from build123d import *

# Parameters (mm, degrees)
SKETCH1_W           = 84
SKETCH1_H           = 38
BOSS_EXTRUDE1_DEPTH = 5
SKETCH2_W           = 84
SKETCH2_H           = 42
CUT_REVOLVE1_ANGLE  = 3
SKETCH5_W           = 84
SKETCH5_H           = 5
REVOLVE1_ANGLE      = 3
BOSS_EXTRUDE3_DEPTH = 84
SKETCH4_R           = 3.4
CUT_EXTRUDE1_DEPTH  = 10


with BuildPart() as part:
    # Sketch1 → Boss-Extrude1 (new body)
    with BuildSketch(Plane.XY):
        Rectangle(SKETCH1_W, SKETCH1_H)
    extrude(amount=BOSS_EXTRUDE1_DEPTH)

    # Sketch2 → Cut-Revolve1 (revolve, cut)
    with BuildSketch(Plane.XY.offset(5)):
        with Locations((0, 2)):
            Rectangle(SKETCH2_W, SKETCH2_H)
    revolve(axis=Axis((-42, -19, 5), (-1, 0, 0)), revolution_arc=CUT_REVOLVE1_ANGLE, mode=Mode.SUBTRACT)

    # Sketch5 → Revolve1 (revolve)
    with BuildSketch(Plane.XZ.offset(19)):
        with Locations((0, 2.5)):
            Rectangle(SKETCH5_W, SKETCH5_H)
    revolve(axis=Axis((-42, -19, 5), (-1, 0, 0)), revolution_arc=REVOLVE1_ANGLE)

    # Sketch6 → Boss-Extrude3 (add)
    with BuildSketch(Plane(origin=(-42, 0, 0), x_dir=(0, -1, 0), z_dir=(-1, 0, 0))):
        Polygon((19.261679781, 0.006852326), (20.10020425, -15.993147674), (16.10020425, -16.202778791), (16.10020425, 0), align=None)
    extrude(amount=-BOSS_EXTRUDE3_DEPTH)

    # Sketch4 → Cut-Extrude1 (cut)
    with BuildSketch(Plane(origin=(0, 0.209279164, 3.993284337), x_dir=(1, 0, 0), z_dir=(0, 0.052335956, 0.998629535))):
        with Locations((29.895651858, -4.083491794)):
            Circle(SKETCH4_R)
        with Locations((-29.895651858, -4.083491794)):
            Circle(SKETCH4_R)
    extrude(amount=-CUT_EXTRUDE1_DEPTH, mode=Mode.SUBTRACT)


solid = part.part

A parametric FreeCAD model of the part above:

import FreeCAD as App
import Part
import Sketcher
Q = App.Units.Quantity


def add_polygon(sketch, points):
    """Adds a closed chain of lines whose ends are joined by coincident constraints."""
    first, n = sketch.GeometryCount, len(points)
    for a, b in zip(points, points[1:] + points[:1]):
        sketch.addGeometry(Part.LineSegment(App.Vector(*a, 0), App.Vector(*b, 0)), False)
    for i in range(n):
        sketch.addConstraint(Sketcher.Constraint("Coincident", first + i, 2, first + (i + 1) % n, 1))

doc = App.newDocument("Part")
body = doc.addObject("PartDesign::Body", "Body")

sketch1 = body.newObject("Sketcher::SketchObject", "Sketch")
sketch1.AttachmentSupport = (doc.getObject("XY_Plane"), [""])
sketch1.MapMode = "FlatFace"
add_polygon(sketch1, [(-42, 19), (-42, -19), (42, -19), (42, 19)])
sketch1.addConstraint(Sketcher.Constraint("Vertical", 0))
sketch1.addConstraint(Sketcher.Constraint("Horizontal", 1))
sketch1.addConstraint(Sketcher.Constraint("Vertical", 2))
sketch1.addConstraint(Sketcher.Constraint("Horizontal", 3))
sketch1.addConstraint(Sketcher.Constraint("Symmetric", 0, 2, 2, 2, -1, 1))
sketch1.addConstraint(Sketcher.Constraint("DistanceX", 1, 1, 1, 2, 84.0))
sketch1.addConstraint(Sketcher.Constraint("DistanceY", 0, 2, 0, 1, 38.0))
pad1 = body.newObject("PartDesign::Pad", "Pad")
pad1.Profile = sketch1
pad1.Length = 5

sketch2 = body.newObject("Sketcher::SketchObject", "Sketch001")
sketch2.AttachmentSupport = (doc.getObject("XY_Plane"), [""])
sketch2.MapMode = "FlatFace"
sketch2.AttachmentOffset = App.Placement(App.Vector(0, 0, 5), App.Rotation())
add_polygon(sketch2, [(-42, 23), (-42, -19), (42, -19), (42, 23)])
sketch2.addGeometry(Part.LineSegment(App.Vector(42, -19, 0), App.Vector(-42, -19, 0)), True)
sketch2.addConstraint(Sketcher.Constraint("Vertical", 0))
sketch2.addConstraint(Sketcher.Constraint("Horizontal", 1))
sketch2.addConstraint(Sketcher.Constraint("Vertical", 2))
sketch2.addConstraint(Sketcher.Constraint("Horizontal", 3))
sketch2.addConstraint(Sketcher.Constraint("Horizontal", 4))
sketch2.addConstraint(Sketcher.Constraint("Coincident", 4, 1, 1, 2))
sketch2.addConstraint(Sketcher.Constraint("Vertical", 3, 2, 4, 2))
sketch2.addConstraint(Sketcher.Constraint("DistanceX", 1, 1, 1, 2, 84.0))
sketch2.addConstraint(Sketcher.Constraint("DistanceY", 0, 2, 0, 1, 42.0))
sketch2.addConstraint(Sketcher.Constraint("DistanceX", 0, 2, -1, 1, 42.0))
sketch2.addConstraint(Sketcher.Constraint("DistanceY", 0, 2, -1, 1, 19.0))
groove = body.newObject("PartDesign::Groove", "Groove")
groove.Profile = sketch2
groove.ReferenceAxis = (sketch2, ["Axis0"])
groove.Angle = 3

sketch3 = body.newObject("Sketcher::SketchObject", "Sketch002")
sketch3.AttachmentSupport = (doc.getObject("XZ_Plane"), [""])
sketch3.MapMode = "FlatFace"
sketch3.AttachmentOffset = App.Placement(App.Vector(0, 0, 19), App.Rotation())
add_polygon(sketch3, [(-42, 5), (-42, 0), (42, 0), (42, 5)])
sketch3.addGeometry(Part.LineSegment(App.Vector(42, 5, 0), App.Vector(-42, 5, 0)), True)
sketch3.addConstraint(Sketcher.Constraint("Vertical", 0))
sketch3.addConstraint(Sketcher.Constraint("Horizontal", 1))
sketch3.addConstraint(Sketcher.Constraint("Vertical", 2))
sketch3.addConstraint(Sketcher.Constraint("Horizontal", 3))
sketch3.addConstraint(Sketcher.Constraint("Horizontal", 4))
sketch3.addConstraint(Sketcher.Constraint("Coincident", 4, 1, 2, 2))
sketch3.addConstraint(Sketcher.Constraint("Symmetric", 0, 2, 1, 2, -1, 1))
sketch3.addConstraint(Sketcher.Constraint("Vertical", 0, 2, 4, 2))
sketch3.addConstraint(Sketcher.Constraint("DistanceX", 1, 1, 1, 2, 84.0))
sketch3.addConstraint(Sketcher.Constraint("DistanceY", 0, 2, 0, 1, 5.0))
revolution = body.newObject("PartDesign::Revolution", "Revolution")
revolution.Profile = sketch3
revolution.ReferenceAxis = (sketch3, ["Axis0"])
revolution.Angle = 3

sketch4 = body.newObject("Sketcher::SketchObject", "Sketch003")
sketch4.AttachmentSupport = (doc.getObject("YZ_Plane"), [""])
sketch4.MapMode = "FlatFace"
sketch4.AttachmentOffset = App.Placement(App.Vector(0, 0, -42), App.Rotation())
add_polygon(sketch4, [(-20.100204, -15.993148), (-19.26168, 0.006852), (-16.100204, 0), (-16.100204, -16.202779)])
sketch4.addConstraint(Sketcher.Constraint("Vertical", 2))
sketch4.addConstraint(Sketcher.Constraint("PointOnObject", 1, 2, -1))
sketch4.addConstraint(Sketcher.Constraint("Perpendicular", 0, 3))
sketch4.addConstraint(Sketcher.Constraint("Angle", 0, Q("87 deg")))
sketch4.addConstraint(Sketcher.Constraint("DistanceX", 3, 2, 2, 2, 4.0))
sketch4.addConstraint(Sketcher.Constraint("DistanceY", 3, 2, 0, 2, 16.0))
sketch4.addConstraint(Sketcher.Constraint("DistanceY", 2, 2, 2, 1, 16.202779))
sketch4.addConstraint(Sketcher.Constraint("DistanceX", 0, 2, -1, 1, 19.26168))
pad2 = body.newObject("PartDesign::Pad", "Pad001")
pad2.Profile = sketch4
pad2.Length = 84

sketch5 = body.newObject("Sketcher::SketchObject", "Sketch004")
sketch5.Placement = App.Placement(App.Vector(0, 0.209279, 3.993284), App.Rotation(App.Vector(1, 0, 0), App.Vector(0, 0.998629535, -0.052335956), App.Vector(0, 0.052335956, 0.998629535), "ZXY"))
sketch5.addGeometry(Part.Circle(App.Vector(29.895652, -4.083492, 0), App.Vector(0, 0, 1), 3.4), False)
sketch5.addGeometry(Part.Circle(App.Vector(-29.895652, -4.083492, 0), App.Vector(0, 0, 1), 3.4), False)
sketch5.addConstraint(Sketcher.Constraint("Equal", 0, 1))
sketch5.addConstraint(Sketcher.Constraint("Symmetric", 0, 3, 1, 3, -2))
sketch5.addConstraint(Sketcher.Constraint("Diameter", 0, 6.8))
sketch5.addConstraint(Sketcher.Constraint("DistanceX", -1, 1, 0, 3, 29.895652))
sketch5.addConstraint(Sketcher.Constraint("DistanceY", 0, 3, -1, 1, 4.083492))
pocket1 = body.newObject("PartDesign::Pocket", "Pocket")
pocket1.Profile = sketch5
pocket1.Length = 10

doc.recompute()
